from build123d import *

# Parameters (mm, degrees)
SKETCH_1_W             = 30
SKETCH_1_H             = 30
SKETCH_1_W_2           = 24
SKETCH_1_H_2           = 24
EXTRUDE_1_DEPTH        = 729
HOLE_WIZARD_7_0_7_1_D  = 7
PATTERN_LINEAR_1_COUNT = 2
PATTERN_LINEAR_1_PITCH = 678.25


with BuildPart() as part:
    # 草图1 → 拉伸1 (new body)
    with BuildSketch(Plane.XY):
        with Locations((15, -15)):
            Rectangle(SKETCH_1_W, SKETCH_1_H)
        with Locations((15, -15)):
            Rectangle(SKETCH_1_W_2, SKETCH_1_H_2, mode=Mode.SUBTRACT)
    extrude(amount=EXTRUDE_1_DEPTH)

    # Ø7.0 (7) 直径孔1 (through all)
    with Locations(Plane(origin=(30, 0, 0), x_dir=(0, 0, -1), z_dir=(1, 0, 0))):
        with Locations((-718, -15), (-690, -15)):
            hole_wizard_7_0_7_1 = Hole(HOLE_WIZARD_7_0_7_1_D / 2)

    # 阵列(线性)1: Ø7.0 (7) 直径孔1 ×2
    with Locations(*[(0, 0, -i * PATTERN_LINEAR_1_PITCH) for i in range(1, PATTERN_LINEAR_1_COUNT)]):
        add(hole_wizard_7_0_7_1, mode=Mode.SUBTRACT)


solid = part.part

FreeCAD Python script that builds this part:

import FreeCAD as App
import Part
import Sketcher
Q = App.Units.Quantity


def add_polygon(sketch, points):
    """Adds a closed chain of lines whose ends are joined by coincident constraints."""
    first, n = sketch.GeometryCount, len(points)
    for a, b in zip(points, points[1:] + points[:1]):
        sketch.addGeometry(Part.LineSegment(App.Vector(*a, 0), App.Vector(*b, 0)), False)
    for i in range(n):
        sketch.addConstraint(Sketcher.Constraint("Coincident", first + i, 2, first + (i + 1) % n, 1))

doc = App.newDocument("Part")
body = doc.addObject("PartDesign::Body", "Body")

# Sketch on XY plane
sketch1 = body.newObject("Sketcher::SketchObject", "Sketch")
sketch1.AttachmentSupport = (doc.getObject("XY_Plane"), [""])
sketch1.MapMode = "FlatFace"
add_polygon(sketch1, [(0, 0), (0, -30), (30, -30), (30, 0)])  # lines 0-3
add_polygon(sketch1, [(27, -27), (3, -27), (3, -3), (27, -3)])  # lines 4-7
sketch1.addConstraint([
    Sketcher.Constraint("Vertical", 0),
    Sketcher.Constraint("Horizontal", 1),
    Sketcher.Constraint("Vertical", 2),
    Sketcher.Constraint("Horizontal", 3),
    Sketcher.Constraint("Horizontal", 4),
    Sketcher.Constraint("Vertical", 5),
    Sketcher.Constraint("Horizontal", 6),
    Sketcher.Constraint("Vertical", 7),
    Sketcher.Constraint("Coincident", 3, 2, -1, 1),
    Sketcher.Constraint("Equal", 3, 0),
    Sketcher.Constraint("Equal", 6, 5),
    Sketcher.Constraint("DistanceX", 1, 1, 1, 2, Q("30 mm")),
    Sketcher.Constraint("DistanceX", 4, 2, 4, 1, Q("24 mm")),
    Sketcher.Constraint("DistanceX", -1, 1, 4, 2, Q("3 mm")),
    Sketcher.Constraint("DistanceY", 4, 2, -1, 1, Q("27 mm")),
])
pad1 = body.newObject("PartDesign::Pad", "Pad")
pad1.Profile = sketch1
pad1.Length = 729

# Sketch on YZ plane
sketch2 = body.newObject("Sketcher::SketchObject", "Sketch001")
sketch2.AttachmentSupport = (doc.getObject("YZ_Plane"), [""])
sketch2.MapMode = "FlatFace"
sketch2.AttachmentOffset = App.Placement(App.Vector(0, 0, 30), App.Rotation())
sketch2.addGeometry([
    Part.Circle(App.Vector(-15, 718, 0), App.Vector(0, 0, 1), 3.5),
    Part.Circle(App.Vector(-15, 690, 0), App.Vector(0, 0, 1), 3.5),
], False)
sketch2.addConstraint([
    Sketcher.Constraint("Equal", 0, 1),
    Sketcher.Constraint("Vertical", 0, 3, 1, 3),
    Sketcher.Constraint("Diameter", 0, Q("7 mm")),
    Sketcher.Constraint("DistanceX", 0, 3, -1, 1, Q("15 mm")),
    Sketcher.Constraint("DistanceY", -1, 1, 0, 3, Q("718 mm")),
    Sketcher.Constraint("DistanceY", -1, 1, 1, 3, Q("690 mm")),
])
doc.recompute()
hole = body.newObject("PartDesign::Hole", "Hole")
hole.Profile = sketch2
hole.ThreadType = "None"
hole.Diameter = 7
hole.DepthType = "ThroughAll"
doc.recompute()

linearpattern = body.newObject("PartDesign::LinearPattern", "LinearPattern")
linearpattern.Originals = [hole]
linearpattern.Direction = (doc.getObject("Z_Axis"), [""])
linearpattern.Mode = "offset"
linearpattern.Offset = 678.25
linearpattern.Occurrences = 2
linearpattern.Reversed = True
body.Tip = linearpattern

doc.recompute()
